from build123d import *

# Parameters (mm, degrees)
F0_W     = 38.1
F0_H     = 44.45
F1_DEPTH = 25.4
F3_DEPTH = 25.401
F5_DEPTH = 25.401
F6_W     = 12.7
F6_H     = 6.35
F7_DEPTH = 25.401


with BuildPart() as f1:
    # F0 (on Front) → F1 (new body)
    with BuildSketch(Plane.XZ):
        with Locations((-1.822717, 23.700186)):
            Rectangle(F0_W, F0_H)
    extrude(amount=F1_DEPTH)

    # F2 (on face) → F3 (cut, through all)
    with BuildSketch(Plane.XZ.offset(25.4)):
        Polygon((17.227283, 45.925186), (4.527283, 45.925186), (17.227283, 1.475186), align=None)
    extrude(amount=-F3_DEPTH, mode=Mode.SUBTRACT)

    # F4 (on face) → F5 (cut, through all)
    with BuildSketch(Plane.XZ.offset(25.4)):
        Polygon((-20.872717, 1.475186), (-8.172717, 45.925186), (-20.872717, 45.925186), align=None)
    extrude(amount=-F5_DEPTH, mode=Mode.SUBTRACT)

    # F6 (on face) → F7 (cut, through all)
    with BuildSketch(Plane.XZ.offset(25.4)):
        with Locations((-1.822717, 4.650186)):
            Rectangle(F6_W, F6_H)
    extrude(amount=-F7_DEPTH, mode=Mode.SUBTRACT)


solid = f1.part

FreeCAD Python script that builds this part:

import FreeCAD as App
import Part
import Sketcher
Q = App.Units.Quantity


def add_polygon(sketch, points):
    """Adds a closed chain of lines whose ends are joined by coincident constraints."""
    first, n = sketch.GeometryCount, len(points)
    for a, b in zip(points, points[1:] + points[:1]):
        sketch.addGeometry(Part.LineSegment(App.Vector(*a, 0), App.Vector(*b, 0)), False)
    for i in range(n):
        sketch.addConstraint(Sketcher.Constraint("Coincident", first + i, 2, first + (i + 1) % n, 1))

doc = App.newDocument("Part")
body = doc.addObject("PartDesign::Body", "Body")

sketch1 = doc.addObject("Sketcher::SketchObject", "Sketch")
body.addObject(sketch1)
sketch1.AttachmentSupport = (doc.XZ_Plane, [""])
sketch1.MapMode = "FlatFace"
add_polygon(sketch1, [(-21, 46), (-21, 1), (17, 1), (17, 46)])
sketch1.addConstraint(Sketcher.Constraint("Vertical", 0))
sketch1.addConstraint(Sketcher.Constraint("Horizontal", 1))
sketch1.addConstraint(Sketcher.Constraint("Vertical", 2))
sketch1.addConstraint(Sketcher.Constraint("Horizontal", 3))
sketch1.addConstraint(Sketcher.Constraint("DistanceX", 1, 1, 1, 2, Q("1.5 in")))
sketch1.addConstraint(Sketcher.Constraint("DistanceY", 0, 2, 0, 1, Q("1.75 in")))
sketch1.addConstraint(Sketcher.Constraint("DistanceX", 0, 2, -1, 1, 20.872717))
sketch1.addConstraint(Sketcher.Constraint("DistanceY", -1, 1, 0, 2, 1.475186))
pad1 = doc.addObject("PartDesign::Pad", "Pad")
body.addObject(pad1)
pad1.Profile = sketch1
pad1.Length = Q("1 in")

sketch2 = doc.addObject("Sketcher::SketchObject", "Sketch001")
body.addObject(sketch2)
sketch2.AttachmentSupport = (doc.XZ_Plane, [""])
sketch2.MapMode = "FlatFace"
sketch2.AttachmentOffset = App.Placement(App.Vector(0, 0, 1 * 25.4), App.Rotation())
add_polygon(sketch2, [(17, 46), (5, 46), (17, 1)])
sketch2.addConstraint(Sketcher.Constraint("Horizontal", 0))
sketch2.addConstraint(Sketcher.Constraint("Vertical", 2))
sketch2.addConstraint(Sketcher.Constraint("DistanceX", 0, 2, 0, 1, Q("0.5 in")))
sketch2.addConstraint(Sketcher.Constraint("DistanceY", 2, 1, 2, 2, Q("1.75 in")))
sketch2.addConstraint(Sketcher.Constraint("DistanceX", -1, 1, 0, 2, 4.527283))
sketch2.addConstraint(Sketcher.Constraint("DistanceY", -1, 1, 0, 2, 45.925186))
pocket1 = doc.addObject("PartDesign::Pocket", "Pocket")
body.addObject(pocket1)
pocket1.Profile = sketch2
pocket1.Type = "ThroughAll"

sketch3 = doc.addObject("Sketcher::SketchObject", "Sketch002")
body.addObject(sketch3)
sketch3.AttachmentSupport = (doc.XZ_Plane, [""])
sketch3.MapMode = "FlatFace"
sketch3.AttachmentOffset = App.Placement(App.Vector(0, 0, 1 * 25.4), App.Rotation())
add_polygon(sketch3, [(-21, 1), (-8, 46), (-21, 46)])
sketch3.addConstraint(Sketcher.Constraint("Horizontal", 1))
sketch3.addConstraint(Sketcher.Constraint("Vertical", 2))
sketch3.addConstraint(Sketcher.Constraint("DistanceX", 1, 2, 1, 1, Q("0.5 in")))
sketch3.addConstraint(Sketcher.Constraint("DistanceY", 2, 2, 2, 1, Q("1.75 in")))
sketch3.addConstraint(Sketcher.Constraint("DistanceX", 0, 2, -1, 1, 8.172717))
sketch3.addConstraint(Sketcher.Constraint("DistanceY", -1, 1, 0, 2, 45.925186))
pocket2 = doc.addObject("PartDesign::Pocket", "Pocket001")
body.addObject(pocket2)
pocket2.Profile = sketch3
pocket2.Type = "ThroughAll"

sketch4 = doc.addObject("Sketcher::SketchObject", "Sketch003")
body.addObject(sketch4)
sketch4.AttachmentSupport = (doc.XZ_Plane, [""])
sketch4.MapMode = "FlatFace"
sketch4.AttachmentOffset = App.Placement(App.Vector(0, 0, 1 * 25.4), App.Rotation())
add_polygon(sketch4, [(-8, 8), (-8, 1), (5, 1), (5, 8)])
sketch4.addConstraint(Sketcher.Constraint("Vertical", 0))
sketch4.addConstraint(Sketcher.Constraint("Horizontal", 1))
sketch4.addConstraint(Sketcher.Constraint("Vertical", 2))
sketch4.addConstraint(Sketcher.Constraint("Horizontal", 3))
sketch4.addConstraint(Sketcher.Constraint("DistanceX", 1, 1, 1, 2, Q("0.5 in")))
sketch4.addConstraint(Sketcher.Constraint("DistanceY", 0, 2, 0, 1, Q("0.25 in")))
sketch4.addConstraint(Sketcher.Constraint("DistanceX", 0, 2, -1, 1, 8.172717))
sketch4.addConstraint(Sketcher.Constraint("DistanceY", -1, 1, 0, 2, 1.475186))
pocket3 = doc.addObject("PartDesign::Pocket", "Pocket002")
body.addObject(pocket3)
pocket3.Profile = sketch4
pocket3.Type = "ThroughAll"

doc.recompute()
